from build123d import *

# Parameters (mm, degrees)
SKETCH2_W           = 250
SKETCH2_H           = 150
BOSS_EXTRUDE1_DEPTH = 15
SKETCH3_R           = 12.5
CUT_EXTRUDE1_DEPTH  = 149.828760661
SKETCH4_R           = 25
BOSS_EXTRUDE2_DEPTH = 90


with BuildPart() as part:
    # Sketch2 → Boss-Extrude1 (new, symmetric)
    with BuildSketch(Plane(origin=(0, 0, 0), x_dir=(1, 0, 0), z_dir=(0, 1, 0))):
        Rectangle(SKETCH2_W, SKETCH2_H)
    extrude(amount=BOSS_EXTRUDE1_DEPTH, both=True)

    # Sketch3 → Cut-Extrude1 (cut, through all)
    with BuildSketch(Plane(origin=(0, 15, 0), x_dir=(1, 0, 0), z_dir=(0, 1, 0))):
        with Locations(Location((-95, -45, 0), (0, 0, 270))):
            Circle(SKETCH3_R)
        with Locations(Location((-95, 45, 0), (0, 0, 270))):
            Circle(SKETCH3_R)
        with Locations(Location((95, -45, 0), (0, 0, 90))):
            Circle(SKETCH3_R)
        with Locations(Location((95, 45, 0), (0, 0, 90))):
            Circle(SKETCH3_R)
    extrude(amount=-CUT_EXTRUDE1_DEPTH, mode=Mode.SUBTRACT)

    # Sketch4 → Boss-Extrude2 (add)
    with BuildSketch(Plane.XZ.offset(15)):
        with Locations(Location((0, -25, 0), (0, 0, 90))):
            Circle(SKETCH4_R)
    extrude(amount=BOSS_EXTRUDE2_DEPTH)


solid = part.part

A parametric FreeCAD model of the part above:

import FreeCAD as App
import Part
import Sketcher

V = App.Vector
Q = App.Units.Quantity

doc = App.newDocument("Part")
params = doc.addObject("Spreadsheet::Sheet", "Params")
for row, (alias, value) in enumerate([
    ("sketch1_width", "250 mm"),
    ("sketch1_height", "150 mm"),
    ("pad1_length", "30 mm"),
    ("sketch2_diameter", "25 mm"),
    ("sketch3_diameter", "50 mm"),
    ("pad2_length", "90 mm"),
], start=1):
    params.set(f"A{row}", alias)
    params.set(f"B{row}", "=" + value)
    params.setAlias(f"B{row}", alias)

body = doc.addObject("PartDesign::Body", "Body")

sketch1 = body.newObject("Sketcher::SketchObject", "Sketch")
sketch1.AttachmentSupport = (doc.getObject("XZ_Plane"), [""])
sketch1.MapMode = "FlatFace"
sketch1.addGeometry(Part.LineSegment(V(-125, -75, 0), V(-125, 75, 0)), False)
sketch1.addGeometry(Part.LineSegment(V(-125, 75, 0), V(125, 75, 0)), False)
sketch1.addGeometry(Part.LineSegment(V(125, 75, 0), V(125, -75, 0)), False)
sketch1.addGeometry(Part.LineSegment(V(125, -75, 0), V(-125, -75, 0)), False)
sketch1.addConstraint(Sketcher.Constraint("Coincident", 0, 2, 1, 1))
sketch1.addConstraint(Sketcher.Constraint("Coincident", 1, 2, 2, 1))
sketch1.addConstraint(Sketcher.Constraint("Coincident", 2, 2, 3, 1))
sketch1.addConstraint(Sketcher.Constraint("Coincident", 3, 2, 0, 1))
sketch1.addConstraint(Sketcher.Constraint("Vertical", 0))
sketch1.addConstraint(Sketcher.Constraint("Horizontal", 1))
sketch1.addConstraint(Sketcher.Constraint("Vertical", 2))
sketch1.addConstraint(Sketcher.Constraint("Horizontal", 3))
sketch1.addConstraint(Sketcher.Constraint("Symmetric", 0, 2, 2, 2, -1, 1))
sketch1.addConstraint(Sketcher.Constraint("DistanceX", 1, 1, 1, 2, Q("250 mm")))
sketch1.addConstraint(Sketcher.Constraint("DistanceY", 0, 1, 0, 2, Q("150 mm")))
sketch1.setExpression("Constraints[9]", "Params.sketch1_width")
sketch1.setExpression("Constraints[10]", "Params.sketch1_height")
pad1 = body.newObject("PartDesign::Pad", "Pad")
pad1.Profile = sketch1
pad1.setExpression("Length", "Params.pad1_length")
pad1.Midplane = True

sketch2 = body.newObject("Sketcher::SketchObject", "Sketch001")
sketch2.AttachmentSupport = (doc.getObject("XZ_Plane"), [""])
sketch2.MapMode = "FlatFace"
sketch2.AttachmentOffset = App.Placement(V(0, 0, -15), App.Rotation())
sketch2.addGeometry(Part.Circle(V(-95, 45, 0), V(0, 0, 1), 12.5), False)
sketch2.addGeometry(Part.Circle(V(-95, -45, 0), V(0, 0, 1), 12.5), False)
sketch2.addGeometry(Part.Circle(V(95, 45, 0), V(0, 0, 1), 12.5), False)
sketch2.addGeometry(Part.Circle(V(95, -45, 0), V(0, 0, 1), 12.5), False)
sketch2.addConstraint(Sketcher.Constraint("Equal", 0, 1))
sketch2.addConstraint(Sketcher.Constraint("Equal", 1, 2))
sketch2.addConstraint(Sketcher.Constraint("Equal", 2, 3))
sketch2.addConstraint(Sketcher.Constraint("Symmetric", 1, 3, 2, 3, -1, 1))
sketch2.addConstraint(Sketcher.Constraint("Symmetric", 0, 3, 3, 3, -1, 1))
sketch2.addConstraint(Sketcher.Constraint("Symmetric", 0, 3, 2, 3, -2))
sketch2.addConstraint(Sketcher.Constraint("Diameter", 0, Q("25 mm")))
sketch2.addConstraint(Sketcher.Constraint("DistanceX", 0, 3, -1, 1, Q("95 mm")))
sketch2.addConstraint(Sketcher.Constraint("DistanceY", -1, 1, 0, 3, Q("45 mm")))
sketch2.setExpression("Constraints[6]", "Params.sketch2_diameter")
pocket1 = body.newObject("PartDesign::Pocket", "Pocket")
pocket1.Profile = sketch2
pocket1.Type = "ThroughAll"
pocket1.Reversed = True

sketch3 = body.newObject("Sketcher::SketchObject", "Sketch002")
sketch3.AttachmentSupport = (doc.getObject("XZ_Plane"), [""])
sketch3.MapMode = "FlatFace"
sketch3.AttachmentOffset = App.Placement(V(0, 0, 15), App.Rotation())
sketch3.addGeometry(Part.Circle(V(0, -25, 0), V(0, 0, 1), 25), False)
sketch3.addConstraint(Sketcher.Constraint("PointOnObject", 0, 3, -2))
sketch3.addConstraint(Sketcher.Constraint("Diameter", 0, Q("50 mm")))
sketch3.addConstraint(Sketcher.Constraint("DistanceY", 0, 3, -1, 1, Q("25 mm")))
sketch3.setExpression("Constraints[1]", "Params.sketch3_diameter")
pad2 = body.newObject("PartDesign::Pad", "Pad001")
pad2.Profile = sketch3
pad2.setExpression("Length", "Params.pad2_length")

doc.recompute()
